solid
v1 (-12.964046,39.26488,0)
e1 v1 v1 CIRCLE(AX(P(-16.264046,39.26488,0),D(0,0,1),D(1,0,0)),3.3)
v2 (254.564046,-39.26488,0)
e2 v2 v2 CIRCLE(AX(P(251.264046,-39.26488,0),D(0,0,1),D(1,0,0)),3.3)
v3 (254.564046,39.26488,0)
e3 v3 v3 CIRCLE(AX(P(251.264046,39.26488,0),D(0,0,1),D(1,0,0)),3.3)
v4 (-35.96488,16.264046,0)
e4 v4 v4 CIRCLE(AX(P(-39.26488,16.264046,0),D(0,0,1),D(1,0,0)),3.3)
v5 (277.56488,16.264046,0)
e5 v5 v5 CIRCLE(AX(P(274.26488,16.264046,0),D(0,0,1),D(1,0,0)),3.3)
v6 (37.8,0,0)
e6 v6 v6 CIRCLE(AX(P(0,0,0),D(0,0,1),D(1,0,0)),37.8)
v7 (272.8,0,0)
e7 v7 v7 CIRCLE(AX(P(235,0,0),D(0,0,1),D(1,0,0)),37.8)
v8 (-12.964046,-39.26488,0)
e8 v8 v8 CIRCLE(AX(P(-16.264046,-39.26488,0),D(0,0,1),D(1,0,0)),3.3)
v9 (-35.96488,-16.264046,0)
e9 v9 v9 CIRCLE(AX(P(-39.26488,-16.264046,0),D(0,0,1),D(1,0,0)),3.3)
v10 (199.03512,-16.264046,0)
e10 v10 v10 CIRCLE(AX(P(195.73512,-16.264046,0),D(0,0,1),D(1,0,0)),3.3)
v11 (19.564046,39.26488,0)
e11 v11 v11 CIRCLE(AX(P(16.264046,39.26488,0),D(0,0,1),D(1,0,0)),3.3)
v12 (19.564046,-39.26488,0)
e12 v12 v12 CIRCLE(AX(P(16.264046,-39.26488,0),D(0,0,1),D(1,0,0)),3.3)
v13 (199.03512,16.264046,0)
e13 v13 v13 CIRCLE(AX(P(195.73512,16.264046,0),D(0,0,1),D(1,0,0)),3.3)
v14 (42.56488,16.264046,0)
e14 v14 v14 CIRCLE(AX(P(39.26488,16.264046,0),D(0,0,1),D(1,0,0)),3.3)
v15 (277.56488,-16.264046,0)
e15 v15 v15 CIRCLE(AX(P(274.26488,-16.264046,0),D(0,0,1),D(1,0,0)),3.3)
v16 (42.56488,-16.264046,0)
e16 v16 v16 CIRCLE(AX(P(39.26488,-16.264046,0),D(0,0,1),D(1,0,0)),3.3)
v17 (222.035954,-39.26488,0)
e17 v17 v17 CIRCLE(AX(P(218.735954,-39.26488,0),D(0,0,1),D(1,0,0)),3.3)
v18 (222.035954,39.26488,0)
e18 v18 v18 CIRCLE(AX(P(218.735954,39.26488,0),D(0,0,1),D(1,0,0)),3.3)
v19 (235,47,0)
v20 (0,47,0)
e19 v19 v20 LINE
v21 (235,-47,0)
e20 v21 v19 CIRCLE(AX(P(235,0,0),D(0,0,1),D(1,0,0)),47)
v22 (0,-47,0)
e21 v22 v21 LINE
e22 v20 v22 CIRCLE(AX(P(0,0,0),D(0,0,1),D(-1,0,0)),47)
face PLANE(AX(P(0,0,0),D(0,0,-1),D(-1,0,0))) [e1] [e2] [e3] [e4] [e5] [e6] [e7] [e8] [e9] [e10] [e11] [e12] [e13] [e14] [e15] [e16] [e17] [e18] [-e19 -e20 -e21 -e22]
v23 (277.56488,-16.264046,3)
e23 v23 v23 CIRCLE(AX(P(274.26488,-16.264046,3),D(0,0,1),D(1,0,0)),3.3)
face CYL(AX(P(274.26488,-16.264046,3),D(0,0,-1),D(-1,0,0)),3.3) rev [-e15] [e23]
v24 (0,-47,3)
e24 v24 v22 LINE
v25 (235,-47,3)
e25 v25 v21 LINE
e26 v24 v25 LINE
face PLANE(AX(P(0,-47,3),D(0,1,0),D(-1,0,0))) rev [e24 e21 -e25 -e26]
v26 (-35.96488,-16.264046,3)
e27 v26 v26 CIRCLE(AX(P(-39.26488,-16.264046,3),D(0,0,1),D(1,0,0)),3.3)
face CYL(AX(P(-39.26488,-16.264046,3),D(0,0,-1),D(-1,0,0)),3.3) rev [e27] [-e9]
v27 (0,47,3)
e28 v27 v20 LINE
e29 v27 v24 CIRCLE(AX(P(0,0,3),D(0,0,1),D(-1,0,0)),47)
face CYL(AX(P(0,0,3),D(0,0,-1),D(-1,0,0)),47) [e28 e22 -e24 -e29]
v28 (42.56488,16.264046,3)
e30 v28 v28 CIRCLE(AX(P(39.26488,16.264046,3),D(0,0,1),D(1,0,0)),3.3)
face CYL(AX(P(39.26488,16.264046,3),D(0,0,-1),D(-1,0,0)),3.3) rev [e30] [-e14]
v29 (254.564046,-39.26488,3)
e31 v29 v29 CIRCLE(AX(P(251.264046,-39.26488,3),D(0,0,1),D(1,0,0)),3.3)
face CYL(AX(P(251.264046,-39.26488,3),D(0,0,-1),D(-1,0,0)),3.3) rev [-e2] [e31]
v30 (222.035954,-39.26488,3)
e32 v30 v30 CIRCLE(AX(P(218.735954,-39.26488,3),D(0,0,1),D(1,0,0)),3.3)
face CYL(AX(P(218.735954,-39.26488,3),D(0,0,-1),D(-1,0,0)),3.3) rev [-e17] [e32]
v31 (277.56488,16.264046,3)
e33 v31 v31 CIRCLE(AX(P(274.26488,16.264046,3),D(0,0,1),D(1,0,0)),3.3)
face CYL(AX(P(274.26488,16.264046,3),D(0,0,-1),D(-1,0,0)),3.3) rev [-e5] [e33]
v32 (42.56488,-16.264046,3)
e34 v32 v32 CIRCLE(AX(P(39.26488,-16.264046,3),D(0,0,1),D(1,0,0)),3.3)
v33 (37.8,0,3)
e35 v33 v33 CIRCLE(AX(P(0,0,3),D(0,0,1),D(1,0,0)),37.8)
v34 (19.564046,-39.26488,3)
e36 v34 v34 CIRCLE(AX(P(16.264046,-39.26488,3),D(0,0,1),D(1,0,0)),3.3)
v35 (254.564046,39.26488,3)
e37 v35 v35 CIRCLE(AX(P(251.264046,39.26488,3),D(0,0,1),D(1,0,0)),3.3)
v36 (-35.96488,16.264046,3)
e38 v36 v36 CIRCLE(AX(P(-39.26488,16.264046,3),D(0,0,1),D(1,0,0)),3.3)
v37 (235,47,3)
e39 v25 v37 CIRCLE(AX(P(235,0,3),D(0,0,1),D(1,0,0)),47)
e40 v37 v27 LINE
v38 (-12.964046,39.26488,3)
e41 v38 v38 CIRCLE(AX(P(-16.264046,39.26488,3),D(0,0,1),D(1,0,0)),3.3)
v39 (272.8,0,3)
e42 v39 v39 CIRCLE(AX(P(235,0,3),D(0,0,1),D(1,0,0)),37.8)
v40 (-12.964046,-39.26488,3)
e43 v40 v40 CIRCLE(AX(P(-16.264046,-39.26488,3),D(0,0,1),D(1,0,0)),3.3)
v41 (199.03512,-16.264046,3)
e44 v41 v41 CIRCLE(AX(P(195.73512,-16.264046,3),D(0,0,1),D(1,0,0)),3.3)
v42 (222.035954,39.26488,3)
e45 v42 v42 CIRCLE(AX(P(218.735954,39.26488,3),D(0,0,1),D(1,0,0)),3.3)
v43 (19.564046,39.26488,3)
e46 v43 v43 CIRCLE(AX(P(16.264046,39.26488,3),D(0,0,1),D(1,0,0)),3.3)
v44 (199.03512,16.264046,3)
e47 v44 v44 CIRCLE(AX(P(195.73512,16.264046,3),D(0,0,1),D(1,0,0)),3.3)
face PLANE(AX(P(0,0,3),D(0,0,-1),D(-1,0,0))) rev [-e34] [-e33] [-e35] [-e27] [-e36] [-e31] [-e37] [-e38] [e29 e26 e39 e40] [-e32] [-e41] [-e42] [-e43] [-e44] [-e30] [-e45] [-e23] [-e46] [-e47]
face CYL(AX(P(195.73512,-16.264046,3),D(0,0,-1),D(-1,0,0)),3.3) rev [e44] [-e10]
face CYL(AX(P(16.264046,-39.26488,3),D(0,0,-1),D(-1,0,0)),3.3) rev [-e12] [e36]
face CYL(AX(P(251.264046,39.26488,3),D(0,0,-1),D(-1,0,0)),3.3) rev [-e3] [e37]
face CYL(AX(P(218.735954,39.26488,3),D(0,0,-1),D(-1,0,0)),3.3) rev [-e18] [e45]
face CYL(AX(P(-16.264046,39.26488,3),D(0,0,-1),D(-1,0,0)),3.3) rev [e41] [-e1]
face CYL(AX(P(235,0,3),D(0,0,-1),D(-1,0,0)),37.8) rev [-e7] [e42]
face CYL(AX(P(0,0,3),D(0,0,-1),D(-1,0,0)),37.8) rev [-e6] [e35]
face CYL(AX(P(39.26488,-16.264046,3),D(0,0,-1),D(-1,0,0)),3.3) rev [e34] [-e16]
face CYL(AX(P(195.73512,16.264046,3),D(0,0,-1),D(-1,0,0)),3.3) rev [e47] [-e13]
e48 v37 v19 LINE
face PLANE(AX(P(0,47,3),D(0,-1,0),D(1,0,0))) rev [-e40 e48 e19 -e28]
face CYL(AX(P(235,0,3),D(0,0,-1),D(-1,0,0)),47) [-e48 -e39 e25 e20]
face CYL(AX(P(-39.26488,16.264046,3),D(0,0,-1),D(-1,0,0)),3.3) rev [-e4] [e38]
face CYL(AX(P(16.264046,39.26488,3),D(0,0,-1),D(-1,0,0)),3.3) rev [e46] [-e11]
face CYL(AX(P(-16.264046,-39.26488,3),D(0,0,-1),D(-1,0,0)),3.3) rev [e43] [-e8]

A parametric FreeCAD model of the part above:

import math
import FreeCAD as App
import Part
import Sketcher
Q = App.Units.Quantity

doc = App.newDocument("Part")
body = doc.addObject("PartDesign::Body", "Body")

# Sketch on XY plane
sketch1 = body.newObject("Sketcher::SketchObject", "Sketch")
sketch1.AttachmentSupport = (doc.getObject("XY_Plane"), [""])
sketch1.MapMode = "FlatFace"
sketch1.addGeometry([
    Part.LineSegment(App.Vector(0, -47, 0), App.Vector(235, -47, 0)),  # 0
    Part.ArcOfCircle(Part.Circle(App.Vector(235, 0, 0), App.Vector(0, 0, 1), 47), math.radians(-90), math.radians(90)),  # 1
    Part.LineSegment(App.Vector(235, 47, 0), App.Vector(0, 47, 0)),  # 2
    Part.ArcOfCircle(Part.Circle(App.Vector(0, 0, 0), App.Vector(0, 0, 1), 47), math.radians(90), math.radians(270)),  # 3
    Part.Circle(App.Vector(-16.3, -39.3, 0), App.Vector(0, 0, 1), 3.3),  # 4
    Part.Circle(App.Vector(16.3, -39.3, 0), App.Vector(0, 0, 1), 3.3),  # 5
    Part.Circle(App.Vector(-39.3, -16.3, 0), App.Vector(0, 0, 1), 3.3),  # 6
    Part.Circle(App.Vector(39.3, -16.3, 0), App.Vector(0, 0, 1), 3.3),  # 7
    Part.Circle(App.Vector(218.7, -39.3, 0), App.Vector(0, 0, 1), 3.3),  # 8
    Part.Circle(App.Vector(251.3, -39.3, 0), App.Vector(0, 0, 1), 3.3),  # 9
    Part.Circle(App.Vector(195.7, -16.3, 0), App.Vector(0, 0, 1), 3.3),  # 10
    Part.Circle(App.Vector(274.3, -16.3, 0), App.Vector(0, 0, 1), 3.3),  # 11
    Part.Circle(App.Vector(0, 0, 0), App.Vector(0, 0, 1), 37.8),  # 12
    Part.Circle(App.Vector(-39.3, 16.3, 0), App.Vector(0, 0, 1), 3.3),  # 13
    Part.Circle(App.Vector(39.3, 16.3, 0), App.Vector(0, 0, 1), 3.3),  # 14
    Part.Circle(App.Vector(-16.3, 39.3, 0), App.Vector(0, 0, 1), 3.3),  # 15
    Part.Circle(App.Vector(16.3, 39.3, 0), App.Vector(0, 0, 1), 3.3),  # 16
    Part.Circle(App.Vector(195.7, 16.3, 0), App.Vector(0, 0, 1), 3.3),  # 17
    Part.Circle(App.Vector(235, 0, 0), App.Vector(0, 0, 1), 37.8),  # 18
    Part.Circle(App.Vector(274.3, 16.3, 0), App.Vector(0, 0, 1), 3.3),  # 19
    Part.Circle(App.Vector(218.7, 39.3, 0), App.Vector(0, 0, 1), 3.3),  # 20
    Part.Circle(App.Vector(251.3, 39.3, 0), App.Vector(0, 0, 1), 3.3),  # 21
], False)
sketch1.addConstraint([
    Sketcher.Constraint("Tangent", 0, 2, 1, 1),
    Sketcher.Constraint("Tangent", 1, 2, 2, 1),
    Sketcher.Constraint("Tangent", 2, 2, 3, 1),
    Sketcher.Constraint("Tangent", 3, 2, 0, 1),
    Sketcher.Constraint("Horizontal", 0),
    Sketcher.Constraint("Horizontal", 2),
    Sketcher.Constraint("Coincident", 3, 3, -1, 1),
    Sketcher.Constraint("Coincident", 12, 3, -1, 1),
    Sketcher.Constraint("Coincident", 18, 3, 1, 3),
    Sketcher.Constraint("Equal", 4, 5),
    Sketcher.Constraint("Equal", 5, 6),
    Sketcher.Constraint("Equal", 6, 7),
    Sketcher.Constraint("Equal", 7, 8),
    Sketcher.Constraint("Equal", 8, 9),
    Sketcher.Constraint("Equal", 9, 10),
    Sketcher.Constraint("Equal", 10, 11),
    Sketcher.Constraint("Equal", 11, 13),
    Sketcher.Constraint("Equal", 13, 14),
    Sketcher.Constraint("Equal", 14, 15),
    Sketcher.Constraint("Equal", 15, 16),
    Sketcher.Constraint("Equal", 16, 17),
    Sketcher.Constraint("Equal", 12, 18),
    Sketcher.Constraint("Equal", 17, 19),
    Sketcher.Constraint("Equal", 19, 20),
    Sketcher.Constraint("Equal", 20, 21),
    Sketcher.Constraint("Symmetric", 7, 3, 13, 3, -1, 1),
    Sketcher.Constraint("Symmetric", 6, 3, 14, 3, -1, 1),
    Sketcher.Constraint("Symmetric", 5, 3, 15, 3, -1, 1),
    Sketcher.Constraint("Symmetric", 4, 3, 16, 3, -1, 1),
    Sketcher.Constraint("Symmetric", 4, 3, 5, 3, -2),
    Sketcher.Constraint("Symmetric", 6, 3, 7, 3, -2),
    Sketcher.Constraint("Symmetric", 10, 3, 17, 3, -1),
    Sketcher.Constraint("Symmetric", 11, 3, 19, 3, -1),
    Sketcher.Constraint("Symmetric", 8, 3, 20, 3, -1),
    Sketcher.Constraint("Symmetric", 9, 3, 21, 3, -1),
    Sketcher.Constraint("Horizontal", 5, 3, 8, 3),
    Sketcher.Constraint("Horizontal", 8, 3, 9, 3),
    Sketcher.Constraint("Horizontal", 7, 3, 10, 3),
    Sketcher.Constraint("Horizontal", 10, 3, 11, 3),
    Sketcher.Constraint("Radius", 1, Q("47 mm")),
    Sketcher.Constraint("Diameter", 4, Q("6.6 mm")),
    Sketcher.Constraint("Diameter", 12, Q("75.6 mm")),
    Sketcher.Constraint("DistanceX", 0, 1, 0, 2, Q("235 mm")),
    Sketcher.Constraint("DistanceX", 4, 3, 8, 3, Q("235 mm")),
    Sketcher.Constraint("DistanceX", 5, 3, 9, 3, Q("235 mm")),
    Sketcher.Constraint("DistanceX", 7, 3, 11, 3, Q("235 mm")),
    Sketcher.Constraint("DistanceY", 4, 3, -1, 1, Q("39.26488 mm")),
    Sketcher.Constraint("DistanceX", 6, 3, -1, 1, Q("39.26488 mm")),
    Sketcher.Constraint("DistanceX", -1, 1, 10, 3, Q("195.73512 mm")),
    Sketcher.Constraint("DistanceX", 4, 3, 5, 3, Q("32.528092 mm")),
    Sketcher.Constraint("DistanceY", 6, 3, 13, 3, Q("32.528092 mm")),
])
pad1 = body.newObject("PartDesign::Pad", "Pad")
pad1.Profile = sketch1
pad1.Length = 3

doc.recompute()
